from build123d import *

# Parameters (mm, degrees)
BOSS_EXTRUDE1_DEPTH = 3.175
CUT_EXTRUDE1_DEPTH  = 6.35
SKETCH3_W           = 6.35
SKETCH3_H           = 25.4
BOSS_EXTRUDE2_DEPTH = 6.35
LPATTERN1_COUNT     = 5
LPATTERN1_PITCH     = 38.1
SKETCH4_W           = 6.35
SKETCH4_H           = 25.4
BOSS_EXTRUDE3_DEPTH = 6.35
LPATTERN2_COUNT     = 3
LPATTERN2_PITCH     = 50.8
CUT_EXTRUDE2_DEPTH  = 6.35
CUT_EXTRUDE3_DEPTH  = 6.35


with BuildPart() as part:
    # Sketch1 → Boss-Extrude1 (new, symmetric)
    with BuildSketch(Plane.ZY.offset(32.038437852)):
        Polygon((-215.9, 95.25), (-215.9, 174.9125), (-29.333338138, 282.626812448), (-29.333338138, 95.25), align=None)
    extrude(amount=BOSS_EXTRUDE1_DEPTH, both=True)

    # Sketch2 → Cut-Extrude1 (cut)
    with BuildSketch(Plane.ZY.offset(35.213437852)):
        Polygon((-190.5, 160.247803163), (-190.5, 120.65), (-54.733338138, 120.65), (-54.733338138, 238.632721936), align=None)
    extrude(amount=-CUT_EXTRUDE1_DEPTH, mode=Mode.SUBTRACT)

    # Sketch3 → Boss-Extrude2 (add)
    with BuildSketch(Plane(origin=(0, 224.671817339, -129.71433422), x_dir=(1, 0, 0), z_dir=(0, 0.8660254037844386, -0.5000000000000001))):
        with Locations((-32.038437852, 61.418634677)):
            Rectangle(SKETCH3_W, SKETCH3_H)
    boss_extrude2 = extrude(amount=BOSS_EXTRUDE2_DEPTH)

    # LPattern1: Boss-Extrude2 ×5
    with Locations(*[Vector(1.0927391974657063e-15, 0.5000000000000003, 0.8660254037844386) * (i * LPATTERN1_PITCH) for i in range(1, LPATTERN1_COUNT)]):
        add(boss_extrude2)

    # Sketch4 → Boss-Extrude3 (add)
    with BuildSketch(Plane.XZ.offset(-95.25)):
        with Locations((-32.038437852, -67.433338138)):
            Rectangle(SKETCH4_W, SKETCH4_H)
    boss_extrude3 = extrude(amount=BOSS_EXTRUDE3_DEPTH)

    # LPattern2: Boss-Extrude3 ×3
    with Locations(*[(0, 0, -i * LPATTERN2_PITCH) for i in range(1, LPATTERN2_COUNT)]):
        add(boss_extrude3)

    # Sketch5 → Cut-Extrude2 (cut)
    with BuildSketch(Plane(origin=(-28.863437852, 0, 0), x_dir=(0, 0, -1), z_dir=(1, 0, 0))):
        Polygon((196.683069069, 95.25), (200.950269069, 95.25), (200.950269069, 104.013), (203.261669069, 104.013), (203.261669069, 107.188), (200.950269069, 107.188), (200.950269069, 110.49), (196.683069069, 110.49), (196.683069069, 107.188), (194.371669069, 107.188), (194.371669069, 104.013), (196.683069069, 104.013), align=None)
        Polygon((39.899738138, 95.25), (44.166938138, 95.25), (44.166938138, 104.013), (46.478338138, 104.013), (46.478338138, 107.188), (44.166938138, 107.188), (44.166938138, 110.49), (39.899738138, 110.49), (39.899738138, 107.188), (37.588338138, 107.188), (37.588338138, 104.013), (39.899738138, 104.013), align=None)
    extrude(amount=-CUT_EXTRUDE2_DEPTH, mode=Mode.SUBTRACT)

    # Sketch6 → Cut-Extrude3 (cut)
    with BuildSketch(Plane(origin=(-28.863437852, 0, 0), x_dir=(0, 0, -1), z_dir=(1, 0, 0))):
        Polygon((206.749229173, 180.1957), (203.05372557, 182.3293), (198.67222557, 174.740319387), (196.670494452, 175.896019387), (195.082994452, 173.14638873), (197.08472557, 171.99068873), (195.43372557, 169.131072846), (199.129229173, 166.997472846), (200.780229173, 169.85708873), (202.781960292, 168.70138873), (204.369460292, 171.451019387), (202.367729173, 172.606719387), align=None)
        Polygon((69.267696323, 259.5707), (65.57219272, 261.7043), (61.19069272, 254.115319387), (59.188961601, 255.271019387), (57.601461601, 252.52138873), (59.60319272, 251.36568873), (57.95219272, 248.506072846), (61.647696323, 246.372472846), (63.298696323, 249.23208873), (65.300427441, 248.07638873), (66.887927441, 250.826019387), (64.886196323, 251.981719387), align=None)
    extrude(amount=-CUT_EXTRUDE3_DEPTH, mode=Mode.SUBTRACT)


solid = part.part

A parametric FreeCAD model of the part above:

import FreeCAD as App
import Part
import Sketcher
from FreeCAD import Vector
Q = App.Units.Quantity

doc = App.newDocument("Part")
params = doc.addObject("Spreadsheet::Sheet", "Params")
for row, (alias, value) in enumerate([
    ("pad1_length", "0.25 in"),
    ("pocket1_length", "0.25 in"),
    ("sketch3_height", "1 in"),
    ("sketch3_width", "0.25 in"),
    ("pad2_length", "0.25 in"),
    ("linearpattern_pitch", "1.5 in"),
    ("sketch4_height", "1 in"),
    ("sketch4_width", "0.25 in"),
    ("pad3_length", "0.25 in"),
    ("linearpattern2_pitch", "2 in"),
    ("sketch5_width", "0.13 in"),
    ("sketch5_width2", "0.345 in"),
    ("sketch5_height", "0.168 in"),
    ("sketch5_height2", "0.091 in"),
    ("pocket2_length", "0.25 in"),
    ("sketch6_length", "0.13 in"),
    ("sketch6_length2", "0.168 in"),
    ("sketch6_length3", "0.345 in"),
    ("sketch6_length4", "0.091 in"),
    ("pocket3_length", "0.25 in"),
], start=1):
    params.set(f"A{row}", alias)
    params.set(f"B{row}", "=" + value)
    params.setAlias(f"B{row}", alias)

body = doc.addObject("PartDesign::Body", "Body")

# Sketch on YZ plane
sketch1 = body.newObject("Sketcher::SketchObject", "Sketch")
sketch1.AttachmentSupport = (doc.getObject("YZ_Plane"), [""])
sketch1.MapMode = "FlatFace"
sketch1.AttachmentOffset = App.Placement(Vector(0, 0, -32.038438), App.Rotation())
sketch1.addGeometry([
    Part.LineSegment(Vector(175, -216, 0), Vector(95, -216, 0)),
    Part.LineSegment(Vector(95, -216, 0), Vector(95, -29, 0)),
    Part.LineSegment(Vector(95, -29, 0), Vector(283, -29, 0)),
    Part.LineSegment(Vector(283, -29, 0), Vector(175, -216, 0)),
], False)
sketch1.addConstraint([
    Sketcher.Constraint("Coincident", 0, 2, 1, 1),
    Sketcher.Constraint("Coincident", 1, 2, 2, 1),
    Sketcher.Constraint("Coincident", 2, 2, 3, 1),
    Sketcher.Constraint("Coincident", 3, 2, 0, 1),
    Sketcher.Constraint("Horizontal", 0),
    Sketcher.Constraint("Vertical", 1),
    Sketcher.Constraint("Horizontal", 2),
    Sketcher.Constraint("Angle", 3, Q("-120 deg")),
    Sketcher.Constraint("DistanceY", 0, 2, -1, 1, Q("8.5 in")),
    Sketcher.Constraint("DistanceX", -1, 1, 0, 2, Q("3.75 in")),
    Sketcher.Constraint("DistanceX", 0, 2, 0, 1, 79.6625),
    Sketcher.Constraint("DistanceY", 1, 1, 1, 2, 186.566662),
])
pad1 = body.newObject("PartDesign::Pad", "Pad")
pad1.Profile = sketch1
pad1.setExpression("Length", "Params.pad1_length")
pad1.Midplane = True

# Sketch on YZ plane
sketch2 = body.newObject("Sketcher::SketchObject", "Sketch001")
sketch2.AttachmentSupport = (doc.getObject("YZ_Plane"), [""])
sketch2.MapMode = "FlatFace"
sketch2.AttachmentOffset = App.Placement(Vector(0, 0, -35.213438), App.Rotation())
sketch2.addGeometry([
    Part.LineSegment(Vector(160, -190, 0), Vector(121, -190, 0)),
    Part.LineSegment(Vector(121, -190, 0), Vector(121, -55, 0)),
    Part.LineSegment(Vector(121, -55, 0), Vector(239, -55, 0)),
    Part.LineSegment(Vector(239, -55, 0), Vector(160, -190, 0)),
], False)
sketch2.addConstraint([
    Sketcher.Constraint("Coincident", 0, 2, 1, 1),
    Sketcher.Constraint("Coincident", 1, 2, 2, 1),
    Sketcher.Constraint("Coincident", 2, 2, 3, 1),
    Sketcher.Constraint("Coincident", 3, 2, 0, 1),
    Sketcher.Constraint("Horizontal", 0),
    Sketcher.Constraint("Vertical", 1),
    Sketcher.Constraint("Horizontal", 2),
    Sketcher.Constraint("Angle", 3, Q("-120 deg")),
    Sketcher.Constraint("DistanceY", 0, 2, -1, 1, Q("7.5 in")),
    Sketcher.Constraint("DistanceX", -1, 1, 0, 2, Q("4.75 in")),
    Sketcher.Constraint("DistanceX", 2, 1, 2, 2, 117.982722),
    Sketcher.Constraint("DistanceY", 1, 1, 1, 2, 135.766662),
])
pocket1 = body.newObject("PartDesign::Pocket", "Pocket")
pocket1.Profile = sketch2
pocket1.setExpression("Length", "Params.pocket1_length")
pocket1.Reversed = True

# Sketch on an angled plane
sketch3 = body.newObject("Sketcher::SketchObject", "Sketch002")
sketch3.Placement = App.Placement(Vector(0, 224.671817, -129.714334), App.Rotation(Vector(1, 0, 0), Vector(0, -0.5, -0.866025404), Vector(0, 0.866025404, -0.5), "ZXY"))
sketch3.addGeometry([
    Part.LineSegment(Vector(-35, 74, 0), Vector(-35, 49, 0)),
    Part.LineSegment(Vector(-35, 49, 0), Vector(-29, 49, 0)),
    Part.LineSegment(Vector(-29, 49, 0), Vector(-29, 74, 0)),
    Part.LineSegment(Vector(-29, 74, 0), Vector(-35, 74, 0)),
], False)
sketch3.addConstraint([
    Sketcher.Constraint("Coincident", 0, 2, 1, 1),
    Sketcher.Constraint("Coincident", 1, 2, 2, 1),
    Sketcher.Constraint("Coincident", 2, 2, 3, 1),
    Sketcher.Constraint("Coincident", 3, 2, 0, 1),
    Sketcher.Constraint("Vertical", 0),
    Sketcher.Constraint("Horizontal", 1),
    Sketcher.Constraint("Vertical", 2),
    Sketcher.Constraint("Horizontal", 3),
    Sketcher.Constraint("DistanceY", 0, 2, 0, 1, Q("1 in")),
    Sketcher.Constraint("DistanceX", 1, 1, 1, 2, Q("0.25 in")),
    Sketcher.Constraint("DistanceX", 0, 2, -1, 1, 35.213438),
    Sketcher.Constraint("DistanceY", -1, 1, 0, 2, 48.718635),
])
sketch3.setExpression("Constraints[8]", "Params.sketch3_height")
sketch3.setExpression("Constraints[9]", "Params.sketch3_width")
pad2 = body.newObject("PartDesign::Pad", "Pad001")
pad2.Profile = sketch3
pad2.setExpression("Length", "Params.pad2_length")
doc.recompute()

datumline = body.newObject("PartDesign::Line", "DatumLine")
datumline.Placement = App.Placement(Vector(0, 0, 0), App.Rotation(Vector(0, 0, 1), Vector(0, 0.5, 0.866025404)))
linearpattern = body.newObject("PartDesign::LinearPattern", "LinearPattern")
linearpattern.Originals = [pad2]
linearpattern.Direction = (datumline, [""])
linearpattern.Mode = "offset"
linearpattern.setExpression("Offset", "Params.linearpattern_pitch")
linearpattern.Occurrences = 5
body.Tip = linearpattern

# Sketch on XZ plane
sketch4 = body.newObject("Sketcher::SketchObject", "Sketch003")
sketch4.AttachmentSupport = (doc.getObject("XZ_Plane"), [""])
sketch4.MapMode = "FlatFace"
sketch4.AttachmentOffset = App.Placement(Vector(0, 0, -3.75 * 25.4), App.Rotation())
sketch4.addGeometry([
    Part.LineSegment(Vector(-35, -55, 0), Vector(-35, -80, 0)),
    Part.LineSegment(Vector(-35, -80, 0), Vector(-29, -80, 0)),
    Part.LineSegment(Vector(-29, -80, 0), Vector(-29, -55, 0)),
    Part.LineSegment(Vector(-29, -55, 0), Vector(-35, -55, 0)),
], False)
sketch4.addConstraint([
    Sketcher.Constraint("Coincident", 0, 2, 1, 1),
    Sketcher.Constraint("Coincident", 1, 2, 2, 1),
    Sketcher.Constraint("Coincident", 2, 2, 3, 1),
    Sketcher.Constraint("Coincident", 3, 2, 0, 1),
    Sketcher.Constraint("Vertical", 0),
    Sketcher.Constraint("Horizontal", 1),
    Sketcher.Constraint("Vertical", 2),
    Sketcher.Constraint("Horizontal", 3),
    Sketcher.Constraint("DistanceY", 0, 2, 0, 1, Q("1 in")),
    Sketcher.Constraint("DistanceX", 1, 1, 1, 2, Q("0.25 in")),
    Sketcher.Constraint("DistanceY", 0, 2, -1, 1, 80.133338),
    Sketcher.Constraint("DistanceX", 0, 2, -1, 1, 35.213438),
])
sketch4.setExpression("Constraints[8]", "Params.sketch4_height")
sketch4.setExpression("Constraints[9]", "Params.sketch4_width")
pad3 = body.newObject("PartDesign::Pad", "Pad002")
pad3.Profile = sketch4
pad3.setExpression("Length", "Params.pad3_length")
doc.recompute()

linearpattern2 = body.newObject("PartDesign::LinearPattern", "LinearPattern001")
linearpattern2.Originals = [pad3]
linearpattern2.Direction = (doc.getObject("Z_Axis"), [""])
linearpattern2.Mode = "offset"
linearpattern2.setExpression("Offset", "Params.linearpattern2_pitch")
linearpattern2.Occurrences = 3
linearpattern2.Reversed = True
body.Tip = linearpattern2

# Sketch on YZ plane
sketch5 = body.newObject("Sketcher::SketchObject", "Sketch004")
sketch5.AttachmentSupport = (doc.getObject("YZ_Plane"), [""])
sketch5.MapMode = "FlatFace"
sketch5.AttachmentOffset = App.Placement(Vector(0, 0, -28.863438), App.Rotation())
sketch5.addGeometry([
    Part.LineSegment(Vector(95.2, -196.7, 0), Vector(95.2, -201, 0)),  # 0
    Part.LineSegment(Vector(95.2, -201, 0), Vector(104, -201, 0)),  # 1
    Part.LineSegment(Vector(104, -201, 0), Vector(104, -203.3, 0)),  # 2
    Part.LineSegment(Vector(104, -203.3, 0), Vector(107.2, -203.3, 0)),  # 3
    Part.LineSegment(Vector(107.2, -203.3, 0), Vector(107.2, -201, 0)),  # 4
    Part.LineSegment(Vector(107.2, -201, 0), Vector(110.5, -201, 0)),  # 5
    Part.LineSegment(Vector(110.5, -201, 0), Vector(110.5, -196.7, 0)),  # 6
    Part.LineSegment(Vector(110.5, -196.7, 0), Vector(107.2, -196.7, 0)),  # 7
    Part.LineSegment(Vector(107.2, -196.7, 0), Vector(107.2, -194.4, 0)),  # 8
    Part.LineSegment(Vector(107.2, -194.4, 0), Vector(104, -194.4, 0)),  # 9
    Part.LineSegment(Vector(104, -194.4, 0), Vector(104, -196.7, 0)),  # 10
    Part.LineSegment(Vector(104, -196.7, 0), Vector(95.2, -196.7, 0)),  # 11
    Part.LineSegment(Vector(95.2, -39.9, 0), Vector(95.2, -44.2, 0)),  # 12
    Part.LineSegment(Vector(95.2, -44.2, 0), Vector(104, -44.2, 0)),  # 13
    Part.LineSegment(Vector(104, -44.2, 0), Vector(104, -46.5, 0)),  # 14
    Part.LineSegment(Vector(104, -46.5, 0), Vector(107.2, -46.5, 0)),  # 15
    Part.LineSegment(Vector(107.2, -46.5, 0), Vector(107.2, -44.2, 0)),  # 16
    Part.LineSegment(Vector(107.2, -44.2, 0), Vector(110.5, -44.2, 0)),  # 17
    Part.LineSegment(Vector(110.5, -44.2, 0), Vector(110.5, -39.9, 0)),  # 18
    Part.LineSegment(Vector(110.5, -39.9, 0), Vector(107.2, -39.9, 0)),  # 19
    Part.LineSegment(Vector(107.2, -39.9, 0), Vector(107.2, -37.6, 0)),  # 20
    Part.LineSegment(Vector(107.2, -37.6, 0), Vector(104, -37.6, 0)),  # 21
    Part.LineSegment(Vector(104, -37.6, 0), Vector(104, -39.9, 0)),  # 22
    Part.LineSegment(Vector(104, -39.9, 0), Vector(95.2, -39.9, 0)),  # 23
], False)
sketch5.addConstraint([
    Sketcher.Constraint("Coincident", 0, 2, 1, 1),
    Sketcher.Constraint("Coincident", 1, 2, 2, 1),
    Sketcher.Constraint("Coincident", 2, 2, 3, 1),
    Sketcher.Constraint("Coincident", 3, 2, 4, 1),
    Sketcher.Constraint("Coincident", 4, 2, 5, 1),
    Sketcher.Constraint("Coincident", 5, 2, 6, 1),
    Sketcher.Constraint("Coincident", 6, 2, 7, 1),
    Sketcher.Constraint("Coincident", 7, 2, 8, 1),
    Sketcher.Constraint("Coincident", 8, 2, 9, 1),
    Sketcher.Constraint("Coincident", 9, 2, 10, 1),
    Sketcher.Constraint("Coincident", 10, 2, 11, 1),
    Sketcher.Constraint("Coincident", 11, 2, 0, 1),
    Sketcher.Constraint("Coincident", 12, 2, 13, 1),
    Sketcher.Constraint("Coincident", 13, 2, 14, 1),
    Sketcher.Constraint("Coincident", 14, 2, 15, 1),
    Sketcher.Constraint("Coincident", 15, 2, 16, 1),
    Sketcher.Constraint("Coincident", 16, 2, 17, 1),
    Sketcher.Constraint("Coincident", 17, 2, 18, 1),
    Sketcher.Constraint("Coincident", 18, 2, 19, 1),
    Sketcher.Constraint("Coincident", 19, 2, 20, 1),
    Sketcher.Constraint("Coincident", 20, 2, 21, 1),
    Sketcher.Constraint("Coincident", 21, 2, 22, 1),
    Sketcher.Constraint("Coincident", 22, 2, 23, 1),
    Sketcher.Constraint("Coincident", 23, 2, 12, 1),
    Sketcher.Constraint("Vertical", 0),
    Sketcher.Constraint("Horizontal", 1),
    Sketcher.Constraint("Vertical", 2),
    Sketcher.Constraint("Horizontal", 3),
    Sketcher.Constraint("Vertical", 4),
    Sketcher.Constraint("Horizontal", 5),
    Sketcher.Constraint("Vertical", 6),
    Sketcher.Constraint("Horizontal", 7),
    Sketcher.Constraint("Vertical", 8),
    Sketcher.Constraint("Horizontal", 9),
    Sketcher.Constraint("Vertical", 10),
    Sketcher.Constraint("Horizontal", 11),
    Sketcher.Constraint("Vertical", 12),
    Sketcher.Constraint("Horizontal", 13),
    Sketcher.Constraint("Vertical", 14),
    Sketcher.Constraint("Horizontal", 15),
    Sketcher.Constraint("Vertical", 16),
    Sketcher.Constraint("Horizontal", 17),
    Sketcher.Constraint("Vertical", 18),
    Sketcher.Constraint("Horizontal", 19),
    Sketcher.Constraint("Vertical", 20),
    Sketcher.Constraint("Horizontal", 21),
    Sketcher.Constraint("Vertical", 22),
    Sketcher.Constraint("Horizontal", 23),
    Sketcher.Constraint("Horizontal", 1, 2, 4, 2),
    Sketcher.Constraint("Horizontal", 7, 2, 10, 2),
    Sketcher.Constraint("Horizontal", 13, 2, 16, 2),
    Sketcher.Constraint("Horizontal", 19, 2, 22, 2),
    Sketcher.Constraint("Vertical", 4, 2, 7, 2),
    Sketcher.Constraint("Vertical", 2, 2, 9, 2),
    Sketcher.Constraint("Vertical", 11, 2, 12, 2),
    Sketcher.Constraint("Vertical", 10, 2, 13, 2),
    Sketcher.Constraint("Vertical", 8, 2, 15, 2),
    Sketcher.Constraint("Vertical", 6, 2, 17, 2),
    Sketcher.Constraint("Vertical", 16, 2, 19, 2),
    Sketcher.Constraint("Vertical", 14, 2, 21, 2),
    Sketcher.Constraint("Equal", 4, 8),
    Sketcher.Constraint("Equal", 6, 12),
    Sketcher.Constraint("Equal", 10, 14),
    Sketcher.Constraint("Equal", 16, 20),
    Sketcher.Constraint("DistanceX", 5, 1, 5, 2, Q("0.13 in")),
    Sketcher.Constraint("DistanceX", 0, 2, 5, 2, Q("0.6 in")),
    Sketcher.Constraint("DistanceX", 1, 1, 1, 2, Q("0.345 in")),
    Sketcher.Constraint("DistanceY", 0, 2, 0, 1, Q("0.168 in")),
    Sketcher.Constraint("DistanceY", 2, 2, 2, 1, Q("0.091 in")),
    Sketcher.Constraint("DistanceX", -1, 1, 0, 2, Q("3.75 in")),
    Sketcher.Constraint("DistanceY", 0, 2, -1, 1, 200.950269),
    Sketcher.Constraint("DistanceY", 12, 2, -1, 1, 44.166938),
])
sketch5.setExpression("Constraints[64]", "Params.sketch5_width")
sketch5.setExpression("Constraints[66]", "Params.sketch5_width2")
sketch5.setExpression("Constraints[67]", "Params.sketch5_height")
sketch5.setExpression("Constraints[68]", "Params.sketch5_height2")
pocket2 = body.newObject("PartDesign::Pocket", "Pocket001")
pocket2.Profile = sketch5
pocket2.setExpression("Length", "Params.pocket2_length")

# Sketch on YZ plane
sketch6 = body.newObject("Sketcher::SketchObject", "Sketch005")
sketch6.AttachmentSupport = (doc.getObject("YZ_Plane"), [""])
sketch6.MapMode = "FlatFace"
sketch6.AttachmentOffset = App.Placement(Vector(0, 0, -28.863438), App.Rotation())
sketch6.addGeometry([
    Part.LineSegment(Vector(180.2, -206.7, 0), Vector(182.3, -203.1, 0)),  # 0
    Part.LineSegment(Vector(182.3, -203.1, 0), Vector(174.7, -198.7, 0)),  # 1
    Part.LineSegment(Vector(174.7, -198.7, 0), Vector(175.9, -196.7, 0)),  # 2
    Part.LineSegment(Vector(175.9, -196.7, 0), Vector(173.1, -195.1, 0)),  # 3
    Part.LineSegment(Vector(173.1, -195.1, 0), Vector(172, -197.1, 0)),  # 4
    Part.LineSegment(Vector(172, -197.1, 0), Vector(169.1, -195.4, 0)),  # 5
    Part.LineSegment(Vector(169.1, -195.4, 0), Vector(167, -199.1, 0)),  # 6
    Part.LineSegment(Vector(167, -199.1, 0), Vector(169.9, -200.8, 0)),  # 7
    Part.LineSegment(Vector(169.9, -200.8, 0), Vector(168.7, -202.8, 0)),  # 8
    Part.LineSegment(Vector(168.7, -202.8, 0), Vector(171.5, -204.4, 0)),  # 9
    Part.LineSegment(Vector(171.5, -204.4, 0), Vector(172.6, -202.4, 0)),  # 10
    Part.LineSegment(Vector(172.6, -202.4, 0), Vector(180.2, -206.7, 0)),  # 11
    Part.LineSegment(Vector(259.6, -69.3, 0), Vector(261.7, -65.6, 0)),  # 12
    Part.LineSegment(Vector(261.7, -65.6, 0), Vector(254.1, -61.2, 0)),  # 13
    Part.LineSegment(Vector(254.1, -61.2, 0), Vector(255.3, -59.2, 0)),  # 14
    Part.LineSegment(Vector(255.3, -59.2, 0), Vector(252.5, -57.6, 0)),  # 15
    Part.LineSegment(Vector(252.5, -57.6, 0), Vector(251.4, -59.6, 0)),  # 16
    Part.LineSegment(Vector(251.4, -59.6, 0), Vector(248.5, -58, 0)),  # 17
    Part.LineSegment(Vector(248.5, -58, 0), Vector(246.4, -61.6, 0)),  # 18
    Part.LineSegment(Vector(246.4, -61.6, 0), Vector(249.2, -63.3, 0)),  # 19
    Part.LineSegment(Vector(249.2, -63.3, 0), Vector(248.1, -65.3, 0)),  # 20
    Part.LineSegment(Vector(248.1, -65.3, 0), Vector(250.8, -66.9, 0)),  # 21
    Part.LineSegment(Vector(250.8, -66.9, 0), Vector(252, -64.9, 0)),  # 22
    Part.LineSegment(Vector(252, -64.9, 0), Vector(259.6, -69.3, 0)),  # 23
], False)
sketch6.addConstraint([
    Sketcher.Constraint("Coincident", 0, 2, 1, 1),
    Sketcher.Constraint("Coincident", 1, 2, 2, 1),
    Sketcher.Constraint("Coincident", 2, 2, 3, 1),
    Sketcher.Constraint("Coincident", 3, 2, 4, 1),
    Sketcher.Constraint("Coincident", 4, 2, 5, 1),
    Sketcher.Constraint("Coincident", 5, 2, 6, 1),
    Sketcher.Constraint("Coincident", 6, 2, 7, 1),
    Sketcher.Constraint("Coincident", 7, 2, 8, 1),
    Sketcher.Constraint("Coincident", 8, 2, 9, 1),
    Sketcher.Constraint("Coincident", 9, 2, 10, 1),
    Sketcher.Constraint("Coincident", 10, 2, 11, 1),
    Sketcher.Constraint("Coincident", 11, 2, 0, 1),
    Sketcher.Constraint("Coincident", 12, 2, 13, 1),
    Sketcher.Constraint("Coincident", 13, 2, 14, 1),
    Sketcher.Constraint("Coincident", 14, 2, 15, 1),
    Sketcher.Constraint("Coincident", 15, 2, 16, 1),
    Sketcher.Constraint("Coincident", 16, 2, 17, 1),
    Sketcher.Constraint("Coincident", 17, 2, 18, 1),
    Sketcher.Constraint("Coincident", 18, 2, 19, 1),
    Sketcher.Constraint("Coincident", 19, 2, 20, 1),
    Sketcher.Constraint("Coincident", 20, 2, 21, 1),
    Sketcher.Constraint("Coincident", 21, 2, 22, 1),
    Sketcher.Constraint("Coincident", 22, 2, 23, 1),
    Sketcher.Constraint("Coincident", 23, 2, 12, 1),
    Sketcher.Constraint("Perpendicular", 0, 1),
    Sketcher.Constraint("Perpendicular", 1, 2),
    Sketcher.Constraint("Perpendicular", 2, 3),
    Sketcher.Constraint("Perpendicular", 3, 4),
    Sketcher.Constraint("Perpendicular", 4, 5),
    Sketcher.Constraint("Perpendicular", 5, 6),
    Sketcher.Constraint("Perpendicular", 6, 7),
    Sketcher.Constraint("Perpendicular", 7, 8),
    Sketcher.Constraint("Perpendicular", 8, 9),
    Sketcher.Constraint("Perpendicular", 9, 10),
    Sketcher.Constraint("Perpendicular", 10, 11),
    Sketcher.Constraint("Perpendicular", 11, 12),
    Sketcher.Constraint("Perpendicular", 12, 13),
    Sketcher.Constraint("Perpendicular", 13, 14),
    Sketcher.Constraint("Perpendicular", 14, 15),
    Sketcher.Constraint("Perpendicular", 15, 16),
    Sketcher.Constraint("Perpendicular", 16, 17),
    Sketcher.Constraint("Perpendicular", 17, 18),
    Sketcher.Constraint("Perpendicular", 18, 19),
    Sketcher.Constraint("Perpendicular", 19, 20),
    Sketcher.Constraint("Perpendicular", 20, 21),
    Sketcher.Constraint("Perpendicular", 21, 22),
    Sketcher.Constraint("Perpendicular", 22, 23),
    Sketcher.Constraint("Equal", 2, 4),
    Sketcher.Constraint("Equal", 0, 6),
    Sketcher.Constraint("Equal", 5, 7),
    Sketcher.Constraint("Equal", 4, 8),
    Sketcher.Constraint("Equal", 3, 9),
    Sketcher.Constraint("Equal", 6, 12),
    Sketcher.Constraint("Equal", 11, 13),
    Sketcher.Constraint("Equal", 10, 14),
    Sketcher.Constraint("Equal", 9, 15),
    Sketcher.Constraint("Equal", 14, 16),
    Sketcher.Constraint("Equal", 7, 17),
    Sketcher.Constraint("Equal", 12, 18),
    Sketcher.Constraint("Equal", 17, 19),
    Sketcher.Constraint("Equal", 16, 20),
    Sketcher.Constraint("Equal", 15, 21),
    Sketcher.Constraint("Angle", 0, Q("60 deg")),
    Sketcher.Constraint("DistanceY", 0, 2, 5, 2, Q("0.3 in")),
    Sketcher.Constraint("Distance", 5, Q("0.13 in")),
    Sketcher.Constraint("Distance", 0, Q("0.168 in")),
    Sketcher.Constraint("Distance", 1, Q("0.345 in")),
    Sketcher.Constraint("Distance", 2, Q("0.091 in")),
    Sketcher.Constraint("DistanceX", 0, 2, 12, 2, Q("3.125 in")),
    Sketcher.Constraint("DistanceX", -1, 1, 0, 2, 182.3293),
    Sketcher.Constraint("DistanceY", 2, 2, 12, 2, 131.098302),
    Sketcher.Constraint("DistanceY", 6, 2, -1, 1, 199.129229),
])
sketch6.setExpression("Constraints[64]", "Params.sketch6_length")
sketch6.setExpression("Constraints[65]", "Params.sketch6_length2")
sketch6.setExpression("Constraints[66]", "Params.sketch6_length3")
sketch6.setExpression("Constraints[67]", "Params.sketch6_length4")
pocket3 = body.newObject("PartDesign::Pocket", "Pocket002")
pocket3.Profile = sketch6
pocket3.setExpression("Length", "Params.pocket3_length")

doc.recompute()
